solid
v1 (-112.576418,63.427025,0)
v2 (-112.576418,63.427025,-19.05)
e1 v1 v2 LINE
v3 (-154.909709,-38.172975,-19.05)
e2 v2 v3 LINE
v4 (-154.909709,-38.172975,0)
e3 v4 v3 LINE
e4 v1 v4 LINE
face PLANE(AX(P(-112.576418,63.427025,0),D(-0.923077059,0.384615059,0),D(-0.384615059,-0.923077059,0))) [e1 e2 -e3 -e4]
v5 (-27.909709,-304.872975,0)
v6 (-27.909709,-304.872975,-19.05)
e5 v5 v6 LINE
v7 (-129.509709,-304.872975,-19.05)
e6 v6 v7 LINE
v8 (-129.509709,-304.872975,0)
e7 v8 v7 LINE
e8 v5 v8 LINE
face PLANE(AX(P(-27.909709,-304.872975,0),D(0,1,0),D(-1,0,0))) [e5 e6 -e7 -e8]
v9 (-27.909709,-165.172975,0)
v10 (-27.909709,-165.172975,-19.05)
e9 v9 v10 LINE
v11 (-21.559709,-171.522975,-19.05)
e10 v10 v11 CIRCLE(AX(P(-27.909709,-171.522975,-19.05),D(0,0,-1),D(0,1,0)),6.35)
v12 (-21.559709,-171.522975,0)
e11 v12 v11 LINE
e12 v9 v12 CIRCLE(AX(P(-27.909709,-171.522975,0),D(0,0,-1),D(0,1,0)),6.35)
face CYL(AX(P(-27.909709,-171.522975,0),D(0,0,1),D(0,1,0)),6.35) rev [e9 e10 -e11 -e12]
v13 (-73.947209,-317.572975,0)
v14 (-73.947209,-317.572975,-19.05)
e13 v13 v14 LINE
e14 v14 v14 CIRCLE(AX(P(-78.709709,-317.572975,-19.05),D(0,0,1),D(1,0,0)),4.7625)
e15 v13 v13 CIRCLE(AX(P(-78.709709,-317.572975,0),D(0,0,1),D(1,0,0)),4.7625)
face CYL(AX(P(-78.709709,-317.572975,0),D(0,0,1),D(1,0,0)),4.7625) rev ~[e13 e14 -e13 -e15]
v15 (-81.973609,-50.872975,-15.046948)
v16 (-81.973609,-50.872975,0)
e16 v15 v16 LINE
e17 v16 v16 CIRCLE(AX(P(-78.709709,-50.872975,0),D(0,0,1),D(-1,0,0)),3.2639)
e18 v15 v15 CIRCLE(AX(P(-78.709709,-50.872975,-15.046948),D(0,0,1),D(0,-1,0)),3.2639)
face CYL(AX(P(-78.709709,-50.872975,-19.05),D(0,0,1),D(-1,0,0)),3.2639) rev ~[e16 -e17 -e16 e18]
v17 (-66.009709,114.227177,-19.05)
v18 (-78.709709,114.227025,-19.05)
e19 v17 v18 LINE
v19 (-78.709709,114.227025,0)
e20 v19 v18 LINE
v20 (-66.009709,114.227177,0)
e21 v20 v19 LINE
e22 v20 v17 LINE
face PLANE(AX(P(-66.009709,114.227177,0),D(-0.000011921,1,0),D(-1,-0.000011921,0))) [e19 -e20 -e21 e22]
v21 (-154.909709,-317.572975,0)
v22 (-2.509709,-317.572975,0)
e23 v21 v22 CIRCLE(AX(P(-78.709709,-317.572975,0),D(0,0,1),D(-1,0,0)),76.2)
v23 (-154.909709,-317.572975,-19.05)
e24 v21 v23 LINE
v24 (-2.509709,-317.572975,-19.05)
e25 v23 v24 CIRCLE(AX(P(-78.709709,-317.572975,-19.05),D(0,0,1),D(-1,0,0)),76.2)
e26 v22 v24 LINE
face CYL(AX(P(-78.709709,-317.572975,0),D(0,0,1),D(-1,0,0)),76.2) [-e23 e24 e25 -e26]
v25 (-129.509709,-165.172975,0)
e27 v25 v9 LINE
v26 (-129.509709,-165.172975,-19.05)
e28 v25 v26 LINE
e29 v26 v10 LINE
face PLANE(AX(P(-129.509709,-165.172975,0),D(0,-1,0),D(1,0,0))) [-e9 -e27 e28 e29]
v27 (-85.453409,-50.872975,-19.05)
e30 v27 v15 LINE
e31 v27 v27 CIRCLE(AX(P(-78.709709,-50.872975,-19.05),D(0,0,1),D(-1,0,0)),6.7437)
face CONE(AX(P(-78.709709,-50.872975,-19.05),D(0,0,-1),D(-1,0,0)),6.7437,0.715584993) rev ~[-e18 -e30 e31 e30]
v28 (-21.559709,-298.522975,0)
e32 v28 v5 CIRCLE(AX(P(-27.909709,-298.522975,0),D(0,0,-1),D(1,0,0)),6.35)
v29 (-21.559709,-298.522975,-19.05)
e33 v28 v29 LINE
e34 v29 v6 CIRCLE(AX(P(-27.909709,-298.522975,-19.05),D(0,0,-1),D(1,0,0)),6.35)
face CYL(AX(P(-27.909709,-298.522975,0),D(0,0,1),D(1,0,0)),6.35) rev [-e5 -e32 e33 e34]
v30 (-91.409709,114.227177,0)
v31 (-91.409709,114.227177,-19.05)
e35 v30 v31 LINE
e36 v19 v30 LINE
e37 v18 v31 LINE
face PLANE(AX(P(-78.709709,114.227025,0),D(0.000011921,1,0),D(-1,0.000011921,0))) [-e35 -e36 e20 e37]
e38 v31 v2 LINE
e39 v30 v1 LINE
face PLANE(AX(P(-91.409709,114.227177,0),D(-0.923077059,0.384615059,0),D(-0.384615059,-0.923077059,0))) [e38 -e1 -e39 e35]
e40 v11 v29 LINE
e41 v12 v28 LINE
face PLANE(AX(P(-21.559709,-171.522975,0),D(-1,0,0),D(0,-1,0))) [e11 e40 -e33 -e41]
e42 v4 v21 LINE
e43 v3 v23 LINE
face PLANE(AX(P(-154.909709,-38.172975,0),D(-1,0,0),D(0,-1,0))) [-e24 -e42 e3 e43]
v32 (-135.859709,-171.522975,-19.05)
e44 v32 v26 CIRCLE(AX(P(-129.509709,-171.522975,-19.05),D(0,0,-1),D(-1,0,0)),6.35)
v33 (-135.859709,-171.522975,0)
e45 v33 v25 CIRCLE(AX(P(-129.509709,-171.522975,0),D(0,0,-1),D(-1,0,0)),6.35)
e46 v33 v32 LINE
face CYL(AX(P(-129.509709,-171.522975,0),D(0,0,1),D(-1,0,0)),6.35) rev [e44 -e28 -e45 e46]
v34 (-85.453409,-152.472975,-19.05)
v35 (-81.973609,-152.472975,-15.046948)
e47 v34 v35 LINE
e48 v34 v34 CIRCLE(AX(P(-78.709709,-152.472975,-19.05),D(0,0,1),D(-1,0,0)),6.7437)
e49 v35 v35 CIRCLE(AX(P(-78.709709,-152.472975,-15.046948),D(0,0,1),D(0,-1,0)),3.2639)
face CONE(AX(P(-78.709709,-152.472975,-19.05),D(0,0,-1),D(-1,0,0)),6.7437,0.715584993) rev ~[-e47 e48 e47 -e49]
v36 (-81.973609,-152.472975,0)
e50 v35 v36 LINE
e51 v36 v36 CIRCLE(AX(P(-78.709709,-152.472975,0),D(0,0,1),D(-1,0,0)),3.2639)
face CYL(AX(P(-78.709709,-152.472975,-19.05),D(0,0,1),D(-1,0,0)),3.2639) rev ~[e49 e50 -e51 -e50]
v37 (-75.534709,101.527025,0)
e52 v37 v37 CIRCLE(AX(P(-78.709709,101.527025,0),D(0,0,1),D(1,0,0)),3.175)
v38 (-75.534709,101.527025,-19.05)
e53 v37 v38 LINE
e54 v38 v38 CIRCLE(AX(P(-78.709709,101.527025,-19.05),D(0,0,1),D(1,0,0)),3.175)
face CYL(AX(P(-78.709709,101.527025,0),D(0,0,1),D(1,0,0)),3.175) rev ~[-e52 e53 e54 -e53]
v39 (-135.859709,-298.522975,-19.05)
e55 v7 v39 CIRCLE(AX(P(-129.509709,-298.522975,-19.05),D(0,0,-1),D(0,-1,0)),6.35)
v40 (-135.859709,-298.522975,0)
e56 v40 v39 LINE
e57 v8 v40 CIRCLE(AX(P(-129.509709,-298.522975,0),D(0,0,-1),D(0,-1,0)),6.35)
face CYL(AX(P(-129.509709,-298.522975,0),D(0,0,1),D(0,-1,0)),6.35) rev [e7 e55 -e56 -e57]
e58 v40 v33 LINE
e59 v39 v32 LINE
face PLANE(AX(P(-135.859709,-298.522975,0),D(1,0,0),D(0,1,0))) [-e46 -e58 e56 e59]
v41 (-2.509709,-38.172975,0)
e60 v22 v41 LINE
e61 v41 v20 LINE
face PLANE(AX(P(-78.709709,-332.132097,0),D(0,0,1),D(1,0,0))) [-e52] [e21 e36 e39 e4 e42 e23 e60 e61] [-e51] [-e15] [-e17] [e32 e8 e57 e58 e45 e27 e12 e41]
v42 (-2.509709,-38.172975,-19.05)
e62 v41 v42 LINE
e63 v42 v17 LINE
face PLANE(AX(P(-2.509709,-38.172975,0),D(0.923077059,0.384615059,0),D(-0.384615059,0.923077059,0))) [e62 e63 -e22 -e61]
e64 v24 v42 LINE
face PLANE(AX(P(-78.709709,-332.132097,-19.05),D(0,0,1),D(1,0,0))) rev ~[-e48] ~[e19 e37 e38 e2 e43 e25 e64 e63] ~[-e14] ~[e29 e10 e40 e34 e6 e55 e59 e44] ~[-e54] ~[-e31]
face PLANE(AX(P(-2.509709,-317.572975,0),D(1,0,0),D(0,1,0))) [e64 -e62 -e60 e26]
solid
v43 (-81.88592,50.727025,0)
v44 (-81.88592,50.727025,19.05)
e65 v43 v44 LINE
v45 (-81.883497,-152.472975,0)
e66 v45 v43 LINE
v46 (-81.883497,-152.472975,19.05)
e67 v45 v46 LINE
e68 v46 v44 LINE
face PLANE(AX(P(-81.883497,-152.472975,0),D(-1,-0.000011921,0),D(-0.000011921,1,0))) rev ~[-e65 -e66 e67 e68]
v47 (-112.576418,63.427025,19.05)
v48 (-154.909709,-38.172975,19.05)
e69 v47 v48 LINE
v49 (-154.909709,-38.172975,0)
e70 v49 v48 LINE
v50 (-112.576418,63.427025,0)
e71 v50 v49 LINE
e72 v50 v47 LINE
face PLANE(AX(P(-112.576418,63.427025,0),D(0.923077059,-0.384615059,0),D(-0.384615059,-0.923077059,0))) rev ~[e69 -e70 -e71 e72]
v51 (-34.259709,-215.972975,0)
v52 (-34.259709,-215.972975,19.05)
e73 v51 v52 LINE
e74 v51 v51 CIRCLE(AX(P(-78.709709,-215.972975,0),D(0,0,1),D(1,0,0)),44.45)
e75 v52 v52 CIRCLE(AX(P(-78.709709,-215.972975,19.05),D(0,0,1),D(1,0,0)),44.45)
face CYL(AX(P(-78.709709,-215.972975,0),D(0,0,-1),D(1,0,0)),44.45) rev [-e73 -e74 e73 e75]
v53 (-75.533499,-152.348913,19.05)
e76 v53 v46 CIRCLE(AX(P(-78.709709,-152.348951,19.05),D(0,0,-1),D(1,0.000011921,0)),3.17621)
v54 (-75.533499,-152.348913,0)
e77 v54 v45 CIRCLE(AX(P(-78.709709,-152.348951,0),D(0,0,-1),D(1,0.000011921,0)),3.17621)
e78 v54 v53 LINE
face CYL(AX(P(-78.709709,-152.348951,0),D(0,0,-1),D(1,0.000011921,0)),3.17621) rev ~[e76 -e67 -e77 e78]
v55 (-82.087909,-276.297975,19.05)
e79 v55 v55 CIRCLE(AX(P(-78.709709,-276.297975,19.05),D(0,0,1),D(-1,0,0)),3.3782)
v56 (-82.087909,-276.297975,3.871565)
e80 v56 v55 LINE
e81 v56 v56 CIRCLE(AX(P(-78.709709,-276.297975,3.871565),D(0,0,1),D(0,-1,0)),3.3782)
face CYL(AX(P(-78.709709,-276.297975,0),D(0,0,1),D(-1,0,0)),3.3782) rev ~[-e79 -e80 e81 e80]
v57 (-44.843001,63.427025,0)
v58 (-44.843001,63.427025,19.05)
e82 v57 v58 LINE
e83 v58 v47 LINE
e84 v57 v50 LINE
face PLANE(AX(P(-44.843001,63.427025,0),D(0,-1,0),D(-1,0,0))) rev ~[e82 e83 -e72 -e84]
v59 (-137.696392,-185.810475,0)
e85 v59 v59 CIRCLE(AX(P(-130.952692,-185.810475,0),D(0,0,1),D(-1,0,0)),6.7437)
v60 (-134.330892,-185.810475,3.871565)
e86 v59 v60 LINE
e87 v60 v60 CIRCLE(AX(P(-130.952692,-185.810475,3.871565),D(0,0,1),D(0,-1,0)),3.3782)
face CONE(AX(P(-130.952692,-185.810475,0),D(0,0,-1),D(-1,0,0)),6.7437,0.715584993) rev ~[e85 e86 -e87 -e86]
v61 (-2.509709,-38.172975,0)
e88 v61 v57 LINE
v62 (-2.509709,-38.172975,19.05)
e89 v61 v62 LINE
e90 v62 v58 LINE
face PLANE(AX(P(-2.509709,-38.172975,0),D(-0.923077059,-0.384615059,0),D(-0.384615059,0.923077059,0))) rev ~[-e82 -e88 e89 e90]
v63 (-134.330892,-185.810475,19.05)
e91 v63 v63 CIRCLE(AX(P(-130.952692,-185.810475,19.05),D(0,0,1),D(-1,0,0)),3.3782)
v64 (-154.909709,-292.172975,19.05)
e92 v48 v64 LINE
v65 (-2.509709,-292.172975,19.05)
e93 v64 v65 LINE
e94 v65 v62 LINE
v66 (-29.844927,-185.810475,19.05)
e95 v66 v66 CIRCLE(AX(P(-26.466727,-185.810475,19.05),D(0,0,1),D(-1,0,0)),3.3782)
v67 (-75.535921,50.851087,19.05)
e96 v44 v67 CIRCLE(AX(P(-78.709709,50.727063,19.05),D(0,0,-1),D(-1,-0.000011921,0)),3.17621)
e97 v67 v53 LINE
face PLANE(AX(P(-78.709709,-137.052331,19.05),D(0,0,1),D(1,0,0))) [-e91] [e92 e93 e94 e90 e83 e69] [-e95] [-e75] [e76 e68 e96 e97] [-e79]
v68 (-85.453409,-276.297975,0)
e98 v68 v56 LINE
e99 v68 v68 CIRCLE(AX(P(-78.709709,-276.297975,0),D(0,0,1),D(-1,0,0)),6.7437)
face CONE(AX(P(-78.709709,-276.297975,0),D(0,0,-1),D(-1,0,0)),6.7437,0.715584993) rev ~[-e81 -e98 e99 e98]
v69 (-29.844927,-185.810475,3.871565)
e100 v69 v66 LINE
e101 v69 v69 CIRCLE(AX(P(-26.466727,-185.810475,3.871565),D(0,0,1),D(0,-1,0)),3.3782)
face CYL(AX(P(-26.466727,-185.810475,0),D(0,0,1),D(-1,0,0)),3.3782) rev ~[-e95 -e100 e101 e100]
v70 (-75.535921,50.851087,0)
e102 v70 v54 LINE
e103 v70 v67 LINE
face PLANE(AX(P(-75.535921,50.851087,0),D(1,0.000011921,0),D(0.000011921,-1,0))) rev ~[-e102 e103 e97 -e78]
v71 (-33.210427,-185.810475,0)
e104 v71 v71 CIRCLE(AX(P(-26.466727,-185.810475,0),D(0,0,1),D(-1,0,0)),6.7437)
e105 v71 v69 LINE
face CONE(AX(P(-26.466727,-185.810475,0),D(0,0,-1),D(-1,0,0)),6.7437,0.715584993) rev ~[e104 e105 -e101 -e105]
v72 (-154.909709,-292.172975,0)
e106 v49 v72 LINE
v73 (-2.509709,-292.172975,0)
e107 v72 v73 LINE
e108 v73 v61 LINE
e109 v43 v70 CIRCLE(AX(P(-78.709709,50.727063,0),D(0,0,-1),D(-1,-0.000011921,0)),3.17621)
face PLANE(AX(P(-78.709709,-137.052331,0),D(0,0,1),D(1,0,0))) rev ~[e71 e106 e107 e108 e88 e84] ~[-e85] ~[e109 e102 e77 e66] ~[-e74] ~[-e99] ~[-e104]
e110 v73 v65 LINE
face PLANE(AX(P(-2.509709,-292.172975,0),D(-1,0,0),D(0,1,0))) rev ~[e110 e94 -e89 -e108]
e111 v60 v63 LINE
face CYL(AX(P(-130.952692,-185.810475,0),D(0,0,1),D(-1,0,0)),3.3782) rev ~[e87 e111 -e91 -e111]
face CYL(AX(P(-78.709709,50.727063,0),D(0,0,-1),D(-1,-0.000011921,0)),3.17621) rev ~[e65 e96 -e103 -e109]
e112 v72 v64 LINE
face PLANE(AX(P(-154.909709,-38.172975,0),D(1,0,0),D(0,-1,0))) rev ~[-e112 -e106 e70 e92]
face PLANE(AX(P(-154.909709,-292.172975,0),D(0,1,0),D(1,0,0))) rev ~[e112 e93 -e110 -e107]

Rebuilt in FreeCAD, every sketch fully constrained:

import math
import FreeCAD as App
import Part
import Sketcher
Q = App.Units.Quantity


def add_polygon(sketch, points):
    """Adds a closed chain of lines whose ends are joined by coincident constraints."""
    first, n = sketch.GeometryCount, len(points)
    for a, b in zip(points, points[1:] + points[:1]):
        sketch.addGeometry(Part.LineSegment(App.Vector(*a, 0), App.Vector(*b, 0)), False)
    for i in range(n):
        sketch.addConstraint(Sketcher.Constraint("Coincident", first + i, 2, first + (i + 1) % n, 1))

doc = App.newDocument("Part")
body = doc.addObject("PartDesign::Body", "Body")

sketch1 = body.newObject("Sketcher::SketchObject", "Sketch")
sketch1.AttachmentSupport = (doc.getObject("XY_Plane"), [""])
sketch1.MapMode = "FlatFace"
add_polygon(sketch1, [(-44.8, 63.4), (-112.6, 63.4), (-154.9, -38.2), (-154.9, -292.2), (-2.5, -292.2), (-2.5, -38.2)])
sketch1.addGeometry(Part.Circle(App.Vector(-78.7, -216, 0), App.Vector(0, 0, 1), 44.5), False)
sketch1.addGeometry(Part.LineSegment(App.Vector(-81.9, -152.5, 0), App.Vector(-81.9, 50.7, 0)), False)
sketch1.addGeometry(Part.ArcOfCircle(Part.Circle(App.Vector(-78.7, 50.7, 0), App.Vector(0, 0, 1), 3.2), math.radians(2), math.radians(180)), False)
sketch1.addGeometry(Part.LineSegment(App.Vector(-75.5, 50.9, 0), App.Vector(-75.5, -152.3, 0)), False)
sketch1.addGeometry(Part.ArcOfCircle(Part.Circle(App.Vector(-78.7, -152.3, 0), App.Vector(0, 0, 1), 3.2), math.radians(-178), math.radians(0)), False)
sketch1.addConstraint([
    Sketcher.Constraint("Tangent", 7, 2, 8, 2),
    Sketcher.Constraint("Coincident", 8, 1, 9, 1),
    Sketcher.Constraint("Tangent", 9, 2, 10, 2),
    Sketcher.Constraint("Coincident", 10, 1, 7, 1),
    Sketcher.Constraint("Horizontal", 0),
    Sketcher.Constraint("Vertical", 2),
    Sketcher.Constraint("Horizontal", 3),
    Sketcher.Constraint("Vertical", 4),
    Sketcher.Constraint("Equal", 8, 10),
    Sketcher.Constraint("Parallel", 7, 9),
    Sketcher.Constraint("Horizontal", 1, 2, 4, 2),
    Sketcher.Constraint("Vertical", 6, 3, 8, 3),
    Sketcher.Constraint("Vertical", 8, 3, 10, 3),
    Sketcher.Constraint("Equal", 1, 5),
    Sketcher.Constraint("Diameter", 6, Q("3.5 in")),
    Sketcher.Constraint("DistanceX", 3, 1, 3, 2, Q("6 in")),
    Sketcher.Constraint("DistanceY", 2, 2, 2, 1, Q("10 in")),
    Sketcher.Constraint("Distance", 7, Q("8 in")),
    Sketcher.Constraint("DistanceY", 6, 3, 0, 2, Q("11 in")),
    Sketcher.Constraint("DistanceY", 1, 2, 0, 2, Q("4 in")),
    Sketcher.Constraint("DistanceX", 1, 2, 8, 3, Q("3 in")),
    Sketcher.Constraint("DistanceY", 7, 2, 0, 2, Q("0.5 in")),
    Sketcher.Constraint("DistanceX", 7, 2, 8, 1, Q("0.2499999 in")),
    Sketcher.Constraint("Radius", 8, 3.17621),
    Sketcher.Constraint("DistanceX", 5, 2, -1, 1, 44.843001),
    Sketcher.Constraint("DistanceX", 9, 2, -1, 1, 75.533499),
    Sketcher.Constraint("DistanceY", 10, 3, -1, 1, 152.348951),
])
pad1 = body.newObject("PartDesign::Pad", "Pad")
pad1.Profile = sketch1
pad1.Length = Q("0.75 in")

sketch2 = body.newObject("Sketcher::SketchObject", "Sketch001")
sketch2.AttachmentSupport = (doc.getObject("XY_Plane"), [""])
sketch2.MapMode = "FlatFace"
sketch2.addGeometry([
    Part.Circle(App.Vector(-26.5, -185.8, 0), App.Vector(0, 0, 1), 3.4),
    Part.Circle(App.Vector(-131, -185.8, 0), App.Vector(0, 0, 1), 3.4),
    Part.Circle(App.Vector(-78.7, -276.3, 0), App.Vector(0, 0, 1), 3.4),
], False)
sketch2.addConstraint([
    Sketcher.Constraint("Equal", 0, 1),
    Sketcher.Constraint("Equal", 1, 2),
    Sketcher.Constraint("Horizontal", 0, 3, 1, 3),
    Sketcher.Constraint("Diameter", 0, Q("0.266 in")),
    Sketcher.Constraint("DistanceY", 2, 3, 0, 3, Q("3.5625 in")),
    Sketcher.Constraint("DistanceX", 1, 3, -1, 1, 130.952692),
    Sketcher.Constraint("DistanceX", 2, 3, -1, 1, 78.709709),
    Sketcher.Constraint("DistanceX", 0, 3, -1, 1, 26.466727),
    Sketcher.Constraint("DistanceY", 0, 3, -1, 1, 185.810475),
])
doc.recompute()
hole = body.newObject("PartDesign::Hole", "Hole")
hole.Profile = sketch2
hole.ThreadType = "None"
hole.Diameter = Q("0.266 in")
hole.DepthType = "ThroughAll"
hole.HoleCutType = "Countersink"
hole.HoleCutDiameter = Q("0.531 in")
hole.HoleCutCountersinkAngle = 82
hole.Reversed = True
body2 = doc.addObject("PartDesign::Body", "Body001")

sketch3 = body2.newObject("Sketcher::SketchObject", "Sketch002")
sketch3.AttachmentSupport = (doc.getObject("XY_Plane001"), [""])
sketch3.MapMode = "FlatFace"
sketch3.addGeometry([
    Part.ArcOfCircle(Part.Circle(App.Vector(-78.7, -317.6, 0), App.Vector(0, 0, 1), 76.2), math.radians(180), math.radians(360)),
    Part.LineSegment(App.Vector(-2.5, -317.6, 0), App.Vector(-2.5, -38.2, 0)),
    Part.LineSegment(App.Vector(-2.5, -38.2, 0), App.Vector(-66, 114.2, 0)),
    Part.LineSegment(App.Vector(-66, 114.2, 0), App.Vector(-78.7, 114.2, 0)),
    Part.LineSegment(App.Vector(-78.7, 114.2, 0), App.Vector(-91.4, 114.2, 0)),
    Part.LineSegment(App.Vector(-91.4, 114.2, 0), App.Vector(-112.6, 63.4, 0)),
    Part.LineSegment(App.Vector(-112.6, 63.4, 0), App.Vector(-154.9, -38.2, 0)),
    Part.LineSegment(App.Vector(-154.9, -38.2, 0), App.Vector(-154.9, -317.6, 0)),
    Part.Circle(App.Vector(-78.7, -317.6, 0), App.Vector(0, 0, 1), 4.8),
    Part.LineSegment(App.Vector(-135.9, -298.5, 0), App.Vector(-135.9, -171.5, 0)),
    Part.ArcOfCircle(Part.Circle(App.Vector(-129.5, -171.5, 0), App.Vector(0, 0, 1), 6.3), math.radians(90), math.radians(180)),
    Part.LineSegment(App.Vector(-129.5, -165.2, 0), App.Vector(-27.9, -165.2, 0)),
    Part.ArcOfCircle(Part.Circle(App.Vector(-27.9, -171.5, 0), App.Vector(0, 0, 1), 6.3), math.radians(0), math.radians(90)),
    Part.LineSegment(App.Vector(-21.6, -171.5, 0), App.Vector(-21.6, -298.5, 0)),
    Part.ArcOfCircle(Part.Circle(App.Vector(-27.9, -298.5, 0), App.Vector(0, 0, 1), 6.3), math.radians(-90), math.radians(0)),
    Part.LineSegment(App.Vector(-27.9, -304.9, 0), App.Vector(-129.5, -304.9, 0)),
    Part.ArcOfCircle(Part.Circle(App.Vector(-129.5, -298.5, 0), App.Vector(0, 0, 1), 6.3), math.radians(180), math.radians(270)),
    Part.Circle(App.Vector(-78.7, 101.5, 0), App.Vector(0, 0, 1), 3.2),
], False)
sketch3.addConstraint([
    Sketcher.Constraint("Tangent", 0, 2, 1, 1),
    Sketcher.Constraint("Coincident", 1, 2, 2, 1),
    Sketcher.Constraint("Coincident", 2, 2, 3, 1),
    Sketcher.Constraint("Coincident", 3, 2, 4, 1),
    Sketcher.Constraint("Coincident", 4, 2, 5, 1),
    Sketcher.Constraint("Coincident", 5, 2, 6, 1),
    Sketcher.Constraint("Coincident", 6, 2, 7, 1),
    Sketcher.Constraint("Tangent", 7, 2, 0, 1),
    Sketcher.Constraint("Tangent", 9, 2, 10, 2),
    Sketcher.Constraint("Tangent", 10, 1, 11, 1),
    Sketcher.Constraint("Tangent", 11, 2, 12, 2),
    Sketcher.Constraint("Tangent", 12, 1, 13, 1),
    Sketcher.Constraint("Tangent", 13, 2, 14, 2),
    Sketcher.Constraint("Tangent", 14, 1, 15, 1),
    Sketcher.Constraint("Tangent", 15, 2, 16, 2),
    Sketcher.Constraint("Tangent", 16, 1, 9, 1),
    Sketcher.Constraint("Vertical", 1),
    Sketcher.Constraint("Vertical", 7),
    Sketcher.Constraint("Vertical", 9),
    Sketcher.Constraint("Horizontal", 11),
    Sketcher.Constraint("Vertical", 13),
    Sketcher.Constraint("Horizontal", 15),
    Sketcher.Constraint("Coincident", 8, 3, 0, 3),
    Sketcher.Constraint("Equal", 10, 12),
    Sketcher.Constraint("Equal", 12, 14),
    Sketcher.Constraint("Equal", 14, 16),
    Sketcher.Constraint("Parallel", 5, 6),
    Sketcher.Constraint("Horizontal", 2, 2, 4, 2),
    Sketcher.Constraint("Horizontal", 1, 2, 6, 2),
    Sketcher.Constraint("Vertical", 8, 3, 17, 3),
    Sketcher.Constraint("Vertical", 17, 3, 3, 2),
    Sketcher.Constraint("Equal", 3, 4),
    Sketcher.Constraint("Radius", 0, Q("3 in")),
    Sketcher.Constraint("Diameter", 17, Q("0.25 in")),
    Sketcher.Constraint("DistanceX", 11, 1, 11, 2, Q("4 in")),
    Sketcher.Constraint("DistanceY", 1, 1, 1, 2, Q("11 in")),
    Sketcher.Constraint("DistanceY", 9, 1, 9, 2, Q("5 in")),
    Sketcher.Constraint("Radius", 10, Q("0.25 in")),
    Sketcher.Constraint("Diameter", 8, Q("0.375 in")),
    Sketcher.Constraint("DistanceX", 10, 3, 0, 3, Q("2 in")),
    Sketcher.Constraint("DistanceY", 1, 2, 3, 2, Q("6 in")),
    Sketcher.Constraint("DistanceX", 4, 2, 2, 2, Q("1 in")),
    Sketcher.Constraint("DistanceY", 5, 2, 3, 2, Q("2 in")),
    Sketcher.Constraint("DistanceY", 10, 1, 6, 2, Q("5 in")),
    Sketcher.Constraint("DistanceY", 0, 3, 17, 3, Q("16.5 in")),
    Sketcher.Constraint("Distance", 2, 165.10014),
    Sketcher.Constraint("DistanceX", 0, 3, -1, 1, 78.709709),
    Sketcher.Constraint("DistanceY", 0, 3, -1, 1, 317.572975),
])
pad2 = body2.newObject("PartDesign::Pad", "Pad001")
pad2.Profile = sketch3
pad2.Length = Q("0.75 in")
pad2.Reversed = True

sketch4 = body2.newObject("Sketcher::SketchObject", "Sketch003")
sketch4.AttachmentSupport = (doc.getObject("XY_Plane001"), [""])
sketch4.MapMode = "FlatFace"
sketch4.AttachmentOffset = App.Placement(App.Vector(0, 0, -0.75 * 25.4), App.Rotation())
sketch4.addGeometry([
    Part.Circle(App.Vector(-78.7, -152.5, 0), App.Vector(0, 0, 1), 3.3),
    Part.Circle(App.Vector(-78.7, -50.9, 0), App.Vector(0, 0, 1), 3.3),
], False)
sketch4.addConstraint([
    Sketcher.Constraint("Equal", 0, 1),
    Sketcher.Constraint("Vertical", 0, 3, 1, 3),
    Sketcher.Constraint("Diameter", 0, Q("0.257 in")),
    Sketcher.Constraint("DistanceY", 0, 3, 1, 3, Q("4 in")),
    Sketcher.Constraint("DistanceX", 0, 3, -1, 1, 78.709709),
    Sketcher.Constraint("DistanceY", 0, 3, -1, 1, 152.472975),
])
doc.recompute()
hole2 = body2.newObject("PartDesign::Hole", "Hole001")
hole2.Profile = sketch4
hole2.ThreadType = "None"
hole2.Diameter = Q("0.257 in")
hole2.DepthType = "ThroughAll"
hole2.HoleCutType = "Countersink"
hole2.HoleCutDiameter = Q("0.531 in")
hole2.HoleCutCountersinkAngle = 82
hole2.Reversed = True

doc.recompute()
